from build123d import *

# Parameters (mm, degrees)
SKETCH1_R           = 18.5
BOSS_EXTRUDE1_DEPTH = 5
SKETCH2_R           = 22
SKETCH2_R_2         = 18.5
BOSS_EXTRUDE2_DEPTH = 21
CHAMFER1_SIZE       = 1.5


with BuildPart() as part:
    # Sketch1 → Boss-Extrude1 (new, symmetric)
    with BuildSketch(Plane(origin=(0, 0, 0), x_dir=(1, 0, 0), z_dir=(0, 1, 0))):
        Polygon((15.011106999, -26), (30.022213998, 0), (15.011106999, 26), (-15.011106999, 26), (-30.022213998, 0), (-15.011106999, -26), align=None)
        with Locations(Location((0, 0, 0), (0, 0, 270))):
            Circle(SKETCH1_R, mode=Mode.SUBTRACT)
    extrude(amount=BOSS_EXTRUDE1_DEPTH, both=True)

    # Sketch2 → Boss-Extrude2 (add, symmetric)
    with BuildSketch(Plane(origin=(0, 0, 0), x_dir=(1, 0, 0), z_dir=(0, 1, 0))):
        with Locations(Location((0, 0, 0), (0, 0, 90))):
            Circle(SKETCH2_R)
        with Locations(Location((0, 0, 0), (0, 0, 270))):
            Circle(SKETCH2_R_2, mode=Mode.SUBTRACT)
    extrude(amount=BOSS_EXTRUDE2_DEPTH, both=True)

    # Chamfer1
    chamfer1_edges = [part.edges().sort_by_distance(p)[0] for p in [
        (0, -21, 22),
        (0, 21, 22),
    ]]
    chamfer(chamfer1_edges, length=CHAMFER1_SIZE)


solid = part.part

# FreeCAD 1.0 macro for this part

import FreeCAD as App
import Part
import Sketcher

V = App.Vector
Q = App.Units.Quantity


def edges_at(feature, points):
    """Names of the edges that pass closest to the given points."""
    edges = feature.Shape.Edges
    near = lambda p: min(range(len(edges)), key=lambda i: edges[i].distToShape(Part.Vertex(*p))[0])
    return sorted({f"Edge{near(p) + 1}" for p in points})

doc = App.newDocument("Part")
body = doc.addObject("PartDesign::Body", "Body")

sketch1 = body.newObject("Sketcher::SketchObject", "Sketch")
sketch1.AttachmentSupport = (doc.getObject("XZ_Plane"), [""])
sketch1.MapMode = "FlatFace"
sketch1.addGeometry(Part.LineSegment(V(15, 26, 0), V(30, 0, 0)), False)
sketch1.addGeometry(Part.LineSegment(V(30, 0, 0), V(15, -26, 0)), False)
sketch1.addGeometry(Part.LineSegment(V(15, -26, 0), V(-15, -26, 0)), False)
sketch1.addGeometry(Part.LineSegment(V(-15, -26, 0), V(-30, 0, 0)), False)
sketch1.addGeometry(Part.LineSegment(V(-30, 0, 0), V(-15, 26, 0)), False)
sketch1.addGeometry(Part.LineSegment(V(-15, 26, 0), V(15, 26, 0)), False)
sketch1.addGeometry(Part.Circle(V(0, 0, 0), V(0, 0, 1), 18), False)
sketch1.addConstraint(Sketcher.Constraint("Coincident", 0, 2, 1, 1))
sketch1.addConstraint(Sketcher.Constraint("Coincident", 1, 2, 2, 1))
sketch1.addConstraint(Sketcher.Constraint("Coincident", 2, 2, 3, 1))
sketch1.addConstraint(Sketcher.Constraint("Coincident", 3, 2, 4, 1))
sketch1.addConstraint(Sketcher.Constraint("Coincident", 4, 2, 5, 1))
sketch1.addConstraint(Sketcher.Constraint("Coincident", 5, 2, 0, 1))
sketch1.addConstraint(Sketcher.Constraint("Horizontal", 2))
sketch1.addConstraint(Sketcher.Constraint("Horizontal", 5))
sketch1.addConstraint(Sketcher.Constraint("Coincident", 6, 3, -1, 1))
sketch1.addConstraint(Sketcher.Constraint("Symmetric", 0, 2, 3, 2, -1, 1))
sketch1.addConstraint(Sketcher.Constraint("Symmetric", 1, 2, 4, 2, -1, 1))
sketch1.addConstraint(Sketcher.Constraint("PointOnObject", 0, 2, -1))
sketch1.addConstraint(Sketcher.Constraint("Parallel", 0, 3))
sketch1.addConstraint(Sketcher.Constraint("Vertical", 2, 2, 4, 2))
sketch1.addConstraint(Sketcher.Constraint("Diameter", 6, Q("37 mm")))
sketch1.addConstraint(Sketcher.Constraint("Angle", 0, Q("-60 deg")))
sketch1.addConstraint(Sketcher.Constraint("DistanceY", 1, 2, -1, 1, Q("26 mm")))
sketch1.addConstraint(Sketcher.Constraint("DistanceX", 2, 2, 2, 1, Q("30.022214 mm")))
pad1 = body.newObject("PartDesign::Pad", "Pad")
pad1.Profile = sketch1
pad1.Length = 10
pad1.Midplane = True

sketch2 = body.newObject("Sketcher::SketchObject", "Sketch001")
sketch2.AttachmentSupport = (doc.getObject("XZ_Plane"), [""])
sketch2.MapMode = "FlatFace"
sketch2.addGeometry(Part.Circle(V(0, 0, 0), V(0, 0, 1), 22), False)
sketch2.addGeometry(Part.Circle(V(0, 0, 0), V(0, 0, 1), 18), False)
sketch2.addConstraint(Sketcher.Constraint("Coincident", 0, 3, -1, 1))
sketch2.addConstraint(Sketcher.Constraint("Coincident", 1, 3, -1, 1))
sketch2.addConstraint(Sketcher.Constraint("Diameter", 0, Q("44 mm")))
sketch2.addConstraint(Sketcher.Constraint("Diameter", 1, Q("37 mm")))
pad2 = body.newObject("PartDesign::Pad", "Pad001")
pad2.Profile = sketch2
pad2.Length = 42
pad2.Midplane = True
doc.recompute()

chamfer = body.newObject("PartDesign::Chamfer", "Chamfer")
chamfer.Base = (pad2, edges_at(pad2, [(0, -21, 22), (0, 21, 22)]))
chamfer.Size = 1.5

doc.recompute()
